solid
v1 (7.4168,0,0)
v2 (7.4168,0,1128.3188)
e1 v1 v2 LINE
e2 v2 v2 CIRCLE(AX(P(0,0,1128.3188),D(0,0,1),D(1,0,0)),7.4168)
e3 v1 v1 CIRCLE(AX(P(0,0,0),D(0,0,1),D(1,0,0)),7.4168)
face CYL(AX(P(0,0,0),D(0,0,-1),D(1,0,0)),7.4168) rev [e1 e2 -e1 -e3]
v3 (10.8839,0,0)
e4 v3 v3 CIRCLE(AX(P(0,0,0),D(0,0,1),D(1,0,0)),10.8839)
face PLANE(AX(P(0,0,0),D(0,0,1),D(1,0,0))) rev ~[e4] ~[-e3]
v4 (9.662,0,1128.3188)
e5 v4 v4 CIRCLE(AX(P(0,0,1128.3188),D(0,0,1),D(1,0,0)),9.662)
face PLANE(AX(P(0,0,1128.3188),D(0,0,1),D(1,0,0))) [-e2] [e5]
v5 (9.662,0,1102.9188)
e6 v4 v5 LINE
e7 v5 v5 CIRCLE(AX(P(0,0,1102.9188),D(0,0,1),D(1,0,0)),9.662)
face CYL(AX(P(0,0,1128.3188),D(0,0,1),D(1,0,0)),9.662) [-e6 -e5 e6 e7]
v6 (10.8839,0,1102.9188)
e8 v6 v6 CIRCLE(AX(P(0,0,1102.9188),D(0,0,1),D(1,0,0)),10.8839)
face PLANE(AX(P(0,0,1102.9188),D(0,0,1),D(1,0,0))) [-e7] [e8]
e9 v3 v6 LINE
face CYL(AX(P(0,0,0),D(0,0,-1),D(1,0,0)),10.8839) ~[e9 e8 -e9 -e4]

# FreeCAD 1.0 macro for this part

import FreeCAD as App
import Part
import Sketcher
Q = App.Units.Quantity

doc = App.newDocument("Part")
body = doc.addObject("PartDesign::Body", "Body")

sketch1 = doc.addObject("Sketcher::SketchObject", "Sketch")
body.addObject(sketch1)
sketch1.AttachmentSupport = (doc.XY_Plane, [""])
sketch1.MapMode = "FlatFace"
sketch1.addGeometry(Part.Circle(App.Vector(0, 0, 0), App.Vector(0, 0, 1), 11), False)
sketch1.addGeometry(Part.Circle(App.Vector(0, 0, 0), App.Vector(0, 0, 1), 7), False)
sketch1.addConstraint(Sketcher.Constraint("Coincident", 0, 3, -1, 1))
sketch1.addConstraint(Sketcher.Constraint("Coincident", 1, 3, -1, 1))
sketch1.addConstraint(Sketcher.Constraint("Diameter", 0, Q("0.857 in")))
sketch1.addConstraint(Sketcher.Constraint("Diameter", 1, Q("0.584 in")))
pad1 = doc.addObject("PartDesign::Pad", "Pad")
body.addObject(pad1)
pad1.Profile = sketch1
pad1.Length = Q("44.422 in")

sketch2 = doc.addObject("Sketcher::SketchObject", "Sketch001")
body.addObject(sketch2)
sketch2.AttachmentSupport = (doc.XY_Plane, [""])
sketch2.MapMode = "FlatFace"
sketch2.AttachmentOffset = App.Placement(App.Vector(0, 0, 44.422 * 25.4), App.Rotation())
sketch2.addGeometry(Part.Circle(App.Vector(0, 0, 0), App.Vector(0, 0, 1), 11), False)
sketch2.addGeometry(Part.Circle(App.Vector(0, 0, 0), App.Vector(0, 0, 1), 10), False)
sketch2.addConstraint(Sketcher.Constraint("Coincident", 0, 3, -1, 1))
sketch2.addConstraint(Sketcher.Constraint("Coincident", 1, 3, -1, 1))
sketch2.addConstraint(Sketcher.Constraint("Diameter", 0, Q("0.857 in")))
sketch2.addConstraint(Sketcher.Constraint("Diameter", 1, Q("19.324 mm")))
pocket1 = doc.addObject("PartDesign::Pocket", "Pocket")
body.addObject(pocket1)
pocket1.Profile = sketch2
pocket1.Length = Q("1 in")

doc.recompute()
